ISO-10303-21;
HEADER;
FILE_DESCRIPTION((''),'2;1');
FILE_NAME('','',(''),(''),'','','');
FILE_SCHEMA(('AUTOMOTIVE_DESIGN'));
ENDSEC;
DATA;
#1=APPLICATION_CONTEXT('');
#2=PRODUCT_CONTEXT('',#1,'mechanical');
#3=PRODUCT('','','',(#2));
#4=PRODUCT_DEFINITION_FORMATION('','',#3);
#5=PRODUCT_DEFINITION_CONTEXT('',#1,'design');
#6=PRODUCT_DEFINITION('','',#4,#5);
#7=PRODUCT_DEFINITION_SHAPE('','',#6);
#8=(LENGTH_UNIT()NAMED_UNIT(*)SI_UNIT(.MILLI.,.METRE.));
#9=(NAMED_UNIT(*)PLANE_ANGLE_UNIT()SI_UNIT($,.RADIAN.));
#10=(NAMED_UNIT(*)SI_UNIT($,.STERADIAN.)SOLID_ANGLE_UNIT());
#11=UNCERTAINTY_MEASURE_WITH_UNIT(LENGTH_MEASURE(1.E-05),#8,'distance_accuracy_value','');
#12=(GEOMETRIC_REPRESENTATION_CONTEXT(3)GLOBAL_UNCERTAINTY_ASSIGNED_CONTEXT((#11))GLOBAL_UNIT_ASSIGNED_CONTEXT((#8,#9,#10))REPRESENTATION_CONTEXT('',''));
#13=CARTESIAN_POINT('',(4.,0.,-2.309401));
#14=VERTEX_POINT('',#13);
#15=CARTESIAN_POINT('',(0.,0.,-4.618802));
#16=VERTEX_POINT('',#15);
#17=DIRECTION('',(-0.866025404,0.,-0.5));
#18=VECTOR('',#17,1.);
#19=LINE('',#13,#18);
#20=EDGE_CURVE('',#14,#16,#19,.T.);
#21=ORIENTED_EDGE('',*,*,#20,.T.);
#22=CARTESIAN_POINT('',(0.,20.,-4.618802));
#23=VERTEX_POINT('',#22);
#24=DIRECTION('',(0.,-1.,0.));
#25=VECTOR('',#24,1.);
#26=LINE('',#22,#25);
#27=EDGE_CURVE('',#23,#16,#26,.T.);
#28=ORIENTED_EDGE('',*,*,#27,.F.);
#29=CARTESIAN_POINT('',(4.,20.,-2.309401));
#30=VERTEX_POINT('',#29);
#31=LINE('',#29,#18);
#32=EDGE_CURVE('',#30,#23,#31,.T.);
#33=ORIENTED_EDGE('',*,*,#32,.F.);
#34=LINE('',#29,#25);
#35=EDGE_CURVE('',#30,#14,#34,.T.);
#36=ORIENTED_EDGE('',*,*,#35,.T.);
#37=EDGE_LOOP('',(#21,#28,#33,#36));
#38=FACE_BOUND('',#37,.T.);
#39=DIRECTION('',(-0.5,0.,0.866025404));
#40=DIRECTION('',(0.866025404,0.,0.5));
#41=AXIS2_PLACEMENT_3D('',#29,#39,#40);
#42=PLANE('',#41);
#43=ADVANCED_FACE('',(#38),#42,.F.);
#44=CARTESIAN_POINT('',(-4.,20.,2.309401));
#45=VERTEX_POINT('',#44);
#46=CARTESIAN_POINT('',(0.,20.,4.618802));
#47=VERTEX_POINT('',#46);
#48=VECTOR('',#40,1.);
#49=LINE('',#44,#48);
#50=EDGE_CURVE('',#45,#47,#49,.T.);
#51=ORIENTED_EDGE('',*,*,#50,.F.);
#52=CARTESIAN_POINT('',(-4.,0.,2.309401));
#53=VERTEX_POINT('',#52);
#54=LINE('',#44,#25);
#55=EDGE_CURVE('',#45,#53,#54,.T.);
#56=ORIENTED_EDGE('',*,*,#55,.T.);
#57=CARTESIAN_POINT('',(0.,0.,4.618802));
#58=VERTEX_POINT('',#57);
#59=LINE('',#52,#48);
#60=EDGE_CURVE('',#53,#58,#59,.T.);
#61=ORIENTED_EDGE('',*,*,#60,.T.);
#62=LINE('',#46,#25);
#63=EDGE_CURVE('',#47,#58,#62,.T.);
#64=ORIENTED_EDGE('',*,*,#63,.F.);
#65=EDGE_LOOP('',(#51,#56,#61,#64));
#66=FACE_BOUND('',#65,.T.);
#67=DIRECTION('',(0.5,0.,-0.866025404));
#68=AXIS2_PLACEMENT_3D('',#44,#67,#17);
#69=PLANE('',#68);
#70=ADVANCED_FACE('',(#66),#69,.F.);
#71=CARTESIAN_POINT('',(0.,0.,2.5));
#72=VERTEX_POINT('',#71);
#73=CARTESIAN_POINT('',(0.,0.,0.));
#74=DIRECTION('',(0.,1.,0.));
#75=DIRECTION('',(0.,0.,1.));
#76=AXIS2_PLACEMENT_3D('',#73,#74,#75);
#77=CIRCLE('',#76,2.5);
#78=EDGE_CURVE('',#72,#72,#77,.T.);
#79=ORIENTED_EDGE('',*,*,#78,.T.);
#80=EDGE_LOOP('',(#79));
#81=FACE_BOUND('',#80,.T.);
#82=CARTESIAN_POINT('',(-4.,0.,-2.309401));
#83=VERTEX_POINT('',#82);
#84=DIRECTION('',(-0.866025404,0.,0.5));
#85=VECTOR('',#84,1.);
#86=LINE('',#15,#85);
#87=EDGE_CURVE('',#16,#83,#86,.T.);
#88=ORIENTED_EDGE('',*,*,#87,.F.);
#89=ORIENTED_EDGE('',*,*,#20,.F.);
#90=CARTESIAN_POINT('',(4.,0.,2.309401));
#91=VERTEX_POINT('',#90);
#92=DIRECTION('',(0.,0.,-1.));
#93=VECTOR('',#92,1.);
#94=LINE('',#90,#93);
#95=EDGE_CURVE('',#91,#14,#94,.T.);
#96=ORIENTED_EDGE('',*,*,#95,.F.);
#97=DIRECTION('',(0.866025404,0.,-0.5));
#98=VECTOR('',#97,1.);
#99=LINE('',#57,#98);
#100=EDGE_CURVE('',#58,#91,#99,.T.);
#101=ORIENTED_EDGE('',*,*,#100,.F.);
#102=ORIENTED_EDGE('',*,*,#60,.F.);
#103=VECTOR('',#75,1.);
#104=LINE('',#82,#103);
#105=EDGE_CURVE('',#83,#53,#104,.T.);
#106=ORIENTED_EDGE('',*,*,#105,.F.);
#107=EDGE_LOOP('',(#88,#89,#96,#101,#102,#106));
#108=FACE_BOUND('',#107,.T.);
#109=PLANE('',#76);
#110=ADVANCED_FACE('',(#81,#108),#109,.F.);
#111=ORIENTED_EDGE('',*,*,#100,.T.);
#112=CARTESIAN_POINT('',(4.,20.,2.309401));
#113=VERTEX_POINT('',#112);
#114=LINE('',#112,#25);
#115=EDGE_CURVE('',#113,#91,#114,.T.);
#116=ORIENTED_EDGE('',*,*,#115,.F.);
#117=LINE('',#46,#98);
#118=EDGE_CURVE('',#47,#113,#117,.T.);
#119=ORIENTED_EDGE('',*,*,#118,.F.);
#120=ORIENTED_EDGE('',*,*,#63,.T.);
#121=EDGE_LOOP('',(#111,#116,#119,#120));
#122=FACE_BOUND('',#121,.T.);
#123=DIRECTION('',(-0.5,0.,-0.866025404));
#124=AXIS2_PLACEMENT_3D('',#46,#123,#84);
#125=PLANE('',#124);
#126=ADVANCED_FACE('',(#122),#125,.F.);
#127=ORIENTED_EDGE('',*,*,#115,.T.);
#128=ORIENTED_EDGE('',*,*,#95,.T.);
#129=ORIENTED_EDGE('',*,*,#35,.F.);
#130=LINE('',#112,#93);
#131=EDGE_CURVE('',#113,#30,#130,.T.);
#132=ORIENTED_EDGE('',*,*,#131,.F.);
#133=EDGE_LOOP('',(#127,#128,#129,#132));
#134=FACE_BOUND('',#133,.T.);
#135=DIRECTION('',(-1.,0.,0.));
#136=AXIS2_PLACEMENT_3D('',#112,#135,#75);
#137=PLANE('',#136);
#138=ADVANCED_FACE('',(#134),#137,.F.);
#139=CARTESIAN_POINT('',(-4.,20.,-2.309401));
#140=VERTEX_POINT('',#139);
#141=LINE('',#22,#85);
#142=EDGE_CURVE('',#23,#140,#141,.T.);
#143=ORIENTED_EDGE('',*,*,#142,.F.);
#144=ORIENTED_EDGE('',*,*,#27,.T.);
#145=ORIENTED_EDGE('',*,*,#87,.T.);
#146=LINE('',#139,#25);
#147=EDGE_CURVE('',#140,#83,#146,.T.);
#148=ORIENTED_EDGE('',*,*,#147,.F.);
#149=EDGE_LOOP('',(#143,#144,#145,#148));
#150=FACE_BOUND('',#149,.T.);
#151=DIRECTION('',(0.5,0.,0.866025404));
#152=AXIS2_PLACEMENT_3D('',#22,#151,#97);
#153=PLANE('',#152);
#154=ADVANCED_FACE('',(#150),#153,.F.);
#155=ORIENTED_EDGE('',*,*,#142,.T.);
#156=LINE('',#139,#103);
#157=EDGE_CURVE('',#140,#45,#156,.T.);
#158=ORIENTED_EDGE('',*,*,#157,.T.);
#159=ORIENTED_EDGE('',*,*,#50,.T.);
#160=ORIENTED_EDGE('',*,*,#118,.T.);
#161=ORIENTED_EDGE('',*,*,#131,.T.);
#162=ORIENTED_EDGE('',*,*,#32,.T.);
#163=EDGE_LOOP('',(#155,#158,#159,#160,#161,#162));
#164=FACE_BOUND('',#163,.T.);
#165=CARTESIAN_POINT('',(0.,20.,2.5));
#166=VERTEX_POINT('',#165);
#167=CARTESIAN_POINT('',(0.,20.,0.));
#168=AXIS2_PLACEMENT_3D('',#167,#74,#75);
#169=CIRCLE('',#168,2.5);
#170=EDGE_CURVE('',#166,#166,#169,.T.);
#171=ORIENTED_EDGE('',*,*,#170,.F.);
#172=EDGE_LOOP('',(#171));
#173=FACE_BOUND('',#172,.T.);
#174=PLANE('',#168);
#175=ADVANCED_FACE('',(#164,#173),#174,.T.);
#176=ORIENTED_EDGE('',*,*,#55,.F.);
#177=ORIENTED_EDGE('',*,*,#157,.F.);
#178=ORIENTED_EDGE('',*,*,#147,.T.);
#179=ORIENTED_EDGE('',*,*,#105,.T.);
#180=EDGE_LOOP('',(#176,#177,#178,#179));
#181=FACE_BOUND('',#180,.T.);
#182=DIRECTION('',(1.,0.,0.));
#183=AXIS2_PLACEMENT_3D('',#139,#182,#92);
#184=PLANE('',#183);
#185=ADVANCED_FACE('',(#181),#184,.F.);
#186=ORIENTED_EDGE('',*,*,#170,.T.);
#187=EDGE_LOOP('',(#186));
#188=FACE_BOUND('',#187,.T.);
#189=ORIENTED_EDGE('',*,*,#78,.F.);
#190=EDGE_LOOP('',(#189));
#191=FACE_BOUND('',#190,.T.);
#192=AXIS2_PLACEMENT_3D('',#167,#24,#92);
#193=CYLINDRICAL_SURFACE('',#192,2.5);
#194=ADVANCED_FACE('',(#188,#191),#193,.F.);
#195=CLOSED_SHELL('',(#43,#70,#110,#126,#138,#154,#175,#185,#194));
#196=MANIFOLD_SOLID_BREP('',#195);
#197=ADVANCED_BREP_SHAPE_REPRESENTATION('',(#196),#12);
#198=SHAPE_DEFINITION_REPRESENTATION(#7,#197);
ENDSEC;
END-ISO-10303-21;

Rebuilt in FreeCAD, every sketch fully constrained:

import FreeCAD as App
import Part
import Sketcher
from FreeCAD import Vector
Q = App.Units.Quantity

doc = App.newDocument("Part")
body = doc.addObject("PartDesign::Body", "Body")

sketch1 = doc.addObject("Sketcher::SketchObject", "Sketch")
body.addObject(sketch1)
sketch1.AttachmentSupport = (doc.XZ_Plane, [""])
sketch1.MapMode = "FlatFace"
sketch1.addGeometry([
    Part.LineSegment(Vector(0, -4.6, 0), Vector(-4, -2.3, 0)),
    Part.LineSegment(Vector(-4, -2.3, 0), Vector(-4, 2.3, 0)),
    Part.LineSegment(Vector(-4, 2.3, 0), Vector(0, 4.6, 0)),
    Part.LineSegment(Vector(0, 4.6, 0), Vector(4, 2.3, 0)),
    Part.LineSegment(Vector(4, 2.3, 0), Vector(4, -2.3, 0)),
    Part.LineSegment(Vector(4, -2.3, 0), Vector(0, -4.6, 0)),
    Part.Circle(Vector(0, 0, 0), Vector(0, 0, 1), 2.5),
], False)
sketch1.addConstraint([
    Sketcher.Constraint("Coincident", 0, 2, 1, 1),
    Sketcher.Constraint("Coincident", 1, 2, 2, 1),
    Sketcher.Constraint("Coincident", 2, 2, 3, 1),
    Sketcher.Constraint("Coincident", 3, 2, 4, 1),
    Sketcher.Constraint("Coincident", 4, 2, 5, 1),
    Sketcher.Constraint("Coincident", 5, 2, 0, 1),
    Sketcher.Constraint("Vertical", 1),
    Sketcher.Constraint("Vertical", 4),
    Sketcher.Constraint("Coincident", 6, 3, -1, 1),
    Sketcher.Constraint("Symmetric", 0, 2, 3, 2, -1, 1),
    Sketcher.Constraint("Symmetric", 2, 2, 5, 2, -1, 1),
    Sketcher.Constraint("PointOnObject", 2, 2, -2),
    Sketcher.Constraint("Parallel", 2, 5),
    Sketcher.Constraint("Horizontal", 1, 2, 3, 2),
    Sketcher.Constraint("Diameter", 6, Q("5 mm")),
    Sketcher.Constraint("Angle", 0, Q("150 deg")),
    Sketcher.Constraint("DistanceX", 0, 2, -1, 1, Q("4 mm")),
    Sketcher.Constraint("DistanceY", 0, 2, -1, 1, Q("2.309401 mm")),
])
pad1 = doc.addObject("PartDesign::Pad", "Pad")
body.addObject(pad1)
pad1.Profile = sketch1
pad1.Length = 20
pad1.Reversed = True

doc.recompute()
